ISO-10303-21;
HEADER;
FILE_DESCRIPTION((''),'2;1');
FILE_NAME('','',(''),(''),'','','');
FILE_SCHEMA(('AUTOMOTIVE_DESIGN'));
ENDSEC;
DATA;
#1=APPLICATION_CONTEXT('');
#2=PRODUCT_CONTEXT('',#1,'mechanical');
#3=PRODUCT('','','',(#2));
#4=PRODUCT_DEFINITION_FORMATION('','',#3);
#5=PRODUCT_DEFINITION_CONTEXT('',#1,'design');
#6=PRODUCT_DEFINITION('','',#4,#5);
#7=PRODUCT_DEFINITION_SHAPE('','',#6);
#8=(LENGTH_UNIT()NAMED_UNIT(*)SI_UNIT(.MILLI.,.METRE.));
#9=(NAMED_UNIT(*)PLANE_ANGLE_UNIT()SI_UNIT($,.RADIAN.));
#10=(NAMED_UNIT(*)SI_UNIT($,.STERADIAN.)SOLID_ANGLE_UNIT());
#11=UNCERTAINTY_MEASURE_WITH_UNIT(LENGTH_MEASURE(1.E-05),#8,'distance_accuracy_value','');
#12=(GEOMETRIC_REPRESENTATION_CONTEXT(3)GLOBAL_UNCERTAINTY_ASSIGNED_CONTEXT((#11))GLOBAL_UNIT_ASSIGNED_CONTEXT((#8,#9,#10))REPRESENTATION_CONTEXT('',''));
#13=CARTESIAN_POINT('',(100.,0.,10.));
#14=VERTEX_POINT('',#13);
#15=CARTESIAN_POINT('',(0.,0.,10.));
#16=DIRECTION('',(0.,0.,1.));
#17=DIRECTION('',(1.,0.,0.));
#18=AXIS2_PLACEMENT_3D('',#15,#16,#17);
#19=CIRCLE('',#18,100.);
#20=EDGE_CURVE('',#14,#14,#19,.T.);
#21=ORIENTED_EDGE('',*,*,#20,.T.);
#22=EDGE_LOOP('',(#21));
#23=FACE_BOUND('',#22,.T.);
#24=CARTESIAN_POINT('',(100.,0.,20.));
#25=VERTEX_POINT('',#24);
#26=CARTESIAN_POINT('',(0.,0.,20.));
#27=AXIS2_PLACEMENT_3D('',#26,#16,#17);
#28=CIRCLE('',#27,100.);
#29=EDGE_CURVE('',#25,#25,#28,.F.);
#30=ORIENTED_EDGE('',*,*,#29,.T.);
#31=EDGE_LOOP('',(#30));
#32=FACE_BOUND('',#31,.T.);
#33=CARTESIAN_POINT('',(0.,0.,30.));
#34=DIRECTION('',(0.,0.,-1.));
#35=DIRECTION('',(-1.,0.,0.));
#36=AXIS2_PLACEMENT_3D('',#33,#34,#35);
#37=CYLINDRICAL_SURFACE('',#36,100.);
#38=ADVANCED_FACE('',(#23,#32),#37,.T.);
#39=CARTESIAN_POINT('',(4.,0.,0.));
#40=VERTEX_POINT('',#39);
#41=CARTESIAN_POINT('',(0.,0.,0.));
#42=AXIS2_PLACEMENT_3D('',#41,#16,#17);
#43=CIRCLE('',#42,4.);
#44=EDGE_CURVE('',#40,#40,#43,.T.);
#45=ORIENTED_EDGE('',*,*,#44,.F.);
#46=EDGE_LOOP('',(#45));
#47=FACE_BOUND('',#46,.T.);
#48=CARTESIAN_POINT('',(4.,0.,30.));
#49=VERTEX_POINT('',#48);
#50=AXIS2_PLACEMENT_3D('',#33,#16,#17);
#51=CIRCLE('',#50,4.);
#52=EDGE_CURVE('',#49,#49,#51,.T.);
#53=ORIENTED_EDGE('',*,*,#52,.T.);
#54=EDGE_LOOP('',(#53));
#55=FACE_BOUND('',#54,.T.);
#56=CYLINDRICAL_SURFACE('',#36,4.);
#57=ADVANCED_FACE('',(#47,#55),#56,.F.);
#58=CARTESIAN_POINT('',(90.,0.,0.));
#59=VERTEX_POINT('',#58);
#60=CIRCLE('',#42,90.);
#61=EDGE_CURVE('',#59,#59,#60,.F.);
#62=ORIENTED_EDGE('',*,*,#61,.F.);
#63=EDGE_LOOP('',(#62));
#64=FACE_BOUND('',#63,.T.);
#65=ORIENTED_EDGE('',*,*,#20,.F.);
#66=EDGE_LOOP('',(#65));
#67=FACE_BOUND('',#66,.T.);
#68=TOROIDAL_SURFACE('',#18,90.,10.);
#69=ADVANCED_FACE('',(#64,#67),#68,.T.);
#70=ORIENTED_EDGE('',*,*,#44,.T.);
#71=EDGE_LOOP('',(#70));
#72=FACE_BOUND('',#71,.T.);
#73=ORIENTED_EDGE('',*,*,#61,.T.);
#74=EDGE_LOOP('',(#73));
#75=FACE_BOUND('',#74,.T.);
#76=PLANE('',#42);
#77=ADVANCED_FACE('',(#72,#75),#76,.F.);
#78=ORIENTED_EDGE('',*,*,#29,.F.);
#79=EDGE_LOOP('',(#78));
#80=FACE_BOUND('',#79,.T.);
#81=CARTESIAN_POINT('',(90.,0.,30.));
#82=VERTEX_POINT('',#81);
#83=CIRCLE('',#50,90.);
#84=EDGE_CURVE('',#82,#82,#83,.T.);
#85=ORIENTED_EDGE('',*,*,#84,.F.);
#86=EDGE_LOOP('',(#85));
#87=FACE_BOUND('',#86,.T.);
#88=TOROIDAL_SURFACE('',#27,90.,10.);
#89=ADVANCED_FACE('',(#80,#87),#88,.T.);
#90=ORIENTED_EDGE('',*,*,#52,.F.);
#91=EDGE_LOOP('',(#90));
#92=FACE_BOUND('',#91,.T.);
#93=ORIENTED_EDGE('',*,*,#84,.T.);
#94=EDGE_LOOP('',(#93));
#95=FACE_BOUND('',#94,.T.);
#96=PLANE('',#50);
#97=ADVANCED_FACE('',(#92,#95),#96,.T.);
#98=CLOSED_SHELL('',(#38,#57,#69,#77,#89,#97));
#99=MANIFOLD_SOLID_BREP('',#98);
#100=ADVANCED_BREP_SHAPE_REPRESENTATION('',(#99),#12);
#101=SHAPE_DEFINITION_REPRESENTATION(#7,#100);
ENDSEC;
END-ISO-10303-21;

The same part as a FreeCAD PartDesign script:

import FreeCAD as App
import Part
import Sketcher

V = App.Vector


def edges_at(feature, points):
    """Names of the edges that pass closest to the given points."""
    edges = feature.Shape.Edges
    near = lambda p: min(range(len(edges)), key=lambda i: edges[i].distToShape(Part.Vertex(*p))[0])
    return sorted({f"Edge{near(p) + 1}" for p in points})

doc = App.newDocument("Part")
body = doc.addObject("PartDesign::Body", "Body")

# Sketch on XY plane
sketch1 = doc.addObject("Sketcher::SketchObject", "Sketch")
body.addObject(sketch1)
sketch1.AttachmentSupport = (doc.XY_Plane, [""])
sketch1.MapMode = "FlatFace"
sketch1.addGeometry([
    Part.Circle(V(0, 0, 0), V(0, 0, 1), 100),
    Part.Circle(V(0, 0, 0), V(0, 0, 1), 4),
], False)
sketch1.addConstraint([
    Sketcher.Constraint("Coincident", 0, 3, -1, 1),
    Sketcher.Constraint("Coincident", 1, 3, -1, 1),
    Sketcher.Constraint("Diameter", 0, 200.0),
    Sketcher.Constraint("Diameter", 1, 8.0),
])
pad1 = doc.addObject("PartDesign::Pad", "Pad")
body.addObject(pad1)
pad1.Profile = sketch1
pad1.Length = 30
doc.recompute()

fillet = doc.addObject("PartDesign::Fillet", "Fillet")
body.addObject(fillet)
fillet.Base = (pad1, edges_at(pad1, [(-100, 0, 30)]))
fillet.Radius = 10
doc.recompute()

fillet2 = doc.addObject("PartDesign::Fillet", "Fillet001")
body.addObject(fillet2)
fillet2.Base = (fillet, edges_at(fillet, [(-100, 0, 0)]))
fillet2.Radius = 10

doc.recompute()
